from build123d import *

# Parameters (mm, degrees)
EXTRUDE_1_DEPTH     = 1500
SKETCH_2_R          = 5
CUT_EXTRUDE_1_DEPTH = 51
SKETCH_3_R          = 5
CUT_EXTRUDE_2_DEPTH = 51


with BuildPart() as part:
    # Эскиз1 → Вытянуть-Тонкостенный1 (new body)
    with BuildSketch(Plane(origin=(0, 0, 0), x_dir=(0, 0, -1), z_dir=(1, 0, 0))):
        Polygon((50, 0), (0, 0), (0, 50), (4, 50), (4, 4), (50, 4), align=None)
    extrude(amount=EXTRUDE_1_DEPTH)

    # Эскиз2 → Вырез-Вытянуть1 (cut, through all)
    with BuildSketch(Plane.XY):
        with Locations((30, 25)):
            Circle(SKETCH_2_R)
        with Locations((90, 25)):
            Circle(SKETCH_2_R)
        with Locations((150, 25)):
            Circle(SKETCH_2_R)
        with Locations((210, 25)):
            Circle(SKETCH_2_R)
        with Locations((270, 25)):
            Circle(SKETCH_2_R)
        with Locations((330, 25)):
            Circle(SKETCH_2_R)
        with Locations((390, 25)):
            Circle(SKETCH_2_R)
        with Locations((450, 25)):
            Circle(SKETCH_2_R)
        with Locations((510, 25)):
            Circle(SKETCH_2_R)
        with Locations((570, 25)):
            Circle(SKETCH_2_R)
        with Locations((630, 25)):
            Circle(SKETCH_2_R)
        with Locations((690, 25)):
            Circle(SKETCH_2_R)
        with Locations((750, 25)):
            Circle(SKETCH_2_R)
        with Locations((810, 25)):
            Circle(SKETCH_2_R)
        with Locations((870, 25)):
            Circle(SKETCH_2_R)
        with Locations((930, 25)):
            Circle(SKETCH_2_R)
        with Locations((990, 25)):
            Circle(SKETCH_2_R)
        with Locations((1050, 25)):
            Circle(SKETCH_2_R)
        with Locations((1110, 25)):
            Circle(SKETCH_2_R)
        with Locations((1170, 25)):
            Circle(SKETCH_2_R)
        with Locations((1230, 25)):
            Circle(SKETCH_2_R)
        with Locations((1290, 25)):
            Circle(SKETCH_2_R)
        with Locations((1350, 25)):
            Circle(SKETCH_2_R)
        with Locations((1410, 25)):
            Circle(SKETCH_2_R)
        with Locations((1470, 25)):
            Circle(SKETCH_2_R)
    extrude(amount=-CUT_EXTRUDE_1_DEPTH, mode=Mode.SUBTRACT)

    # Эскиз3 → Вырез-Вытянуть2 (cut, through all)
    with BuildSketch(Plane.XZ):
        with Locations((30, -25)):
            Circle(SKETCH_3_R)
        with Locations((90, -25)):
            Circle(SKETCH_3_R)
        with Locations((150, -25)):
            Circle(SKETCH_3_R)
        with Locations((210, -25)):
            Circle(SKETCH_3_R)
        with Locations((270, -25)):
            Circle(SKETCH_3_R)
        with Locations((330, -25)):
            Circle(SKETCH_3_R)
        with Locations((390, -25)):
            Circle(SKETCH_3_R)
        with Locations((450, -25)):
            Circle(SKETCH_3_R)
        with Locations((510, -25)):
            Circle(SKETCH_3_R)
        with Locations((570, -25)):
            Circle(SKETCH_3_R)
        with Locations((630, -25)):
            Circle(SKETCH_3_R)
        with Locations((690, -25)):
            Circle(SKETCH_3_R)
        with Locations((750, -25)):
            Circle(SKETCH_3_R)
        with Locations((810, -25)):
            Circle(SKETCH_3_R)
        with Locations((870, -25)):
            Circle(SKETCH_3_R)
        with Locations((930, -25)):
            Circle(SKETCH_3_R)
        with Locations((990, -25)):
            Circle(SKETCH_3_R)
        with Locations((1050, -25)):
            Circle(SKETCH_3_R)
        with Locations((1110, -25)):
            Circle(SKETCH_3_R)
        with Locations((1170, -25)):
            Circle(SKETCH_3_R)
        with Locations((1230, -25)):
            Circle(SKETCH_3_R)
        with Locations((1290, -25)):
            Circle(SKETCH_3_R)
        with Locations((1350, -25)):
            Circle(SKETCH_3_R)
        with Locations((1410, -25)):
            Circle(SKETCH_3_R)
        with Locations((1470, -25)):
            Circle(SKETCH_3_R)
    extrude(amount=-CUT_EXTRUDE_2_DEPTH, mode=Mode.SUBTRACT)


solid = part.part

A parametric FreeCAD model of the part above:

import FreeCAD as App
import Part
import Sketcher

V = App.Vector
Q = App.Units.Quantity

doc = App.newDocument("Part")
params = doc.addObject("Spreadsheet::Sheet", "Params")
for row, (alias, value) in enumerate([
    ("sketch1_width", "4 mm"),
    ("sketch1_width2", "46 mm"),
    ("pad1_length", "1500 mm"),
    ("sketch2_diameter", "10 mm"),
    ("sketch3_diameter", "10 mm"),
], start=1):
    params.set(f"A{row}", alias)
    params.set(f"B{row}", "=" + value)
    params.setAlias(f"B{row}", alias)

body = doc.addObject("PartDesign::Body", "Body")

# Sketch on YZ plane
sketch1 = body.newObject("Sketcher::SketchObject", "Sketch")
sketch1.AttachmentSupport = (doc.getObject("YZ_Plane"), [""])
sketch1.MapMode = "FlatFace"
sketch1.addGeometry([
    Part.LineSegment(V(0, 0, 0), V(0, -50, 0)),  # 0
    Part.LineSegment(V(0, -50, 0), V(4, -50, 0)),  # 1
    Part.LineSegment(V(4, -50, 0), V(4, -4, 0)),  # 2
    Part.LineSegment(V(4, -4, 0), V(50, -4, 0)),  # 3
    Part.LineSegment(V(50, -4, 0), V(50, 0, 0)),  # 4
    Part.LineSegment(V(50, 0, 0), V(0, 0, 0)),  # 5
], False)
sketch1.addConstraint([
    Sketcher.Constraint("Coincident", 0, 2, 1, 1),
    Sketcher.Constraint("Coincident", 1, 2, 2, 1),
    Sketcher.Constraint("Coincident", 2, 2, 3, 1),
    Sketcher.Constraint("Coincident", 3, 2, 4, 1),
    Sketcher.Constraint("Coincident", 4, 2, 5, 1),
    Sketcher.Constraint("Coincident", 5, 2, 0, 1),
    Sketcher.Constraint("Vertical", 0),
    Sketcher.Constraint("Horizontal", 1),
    Sketcher.Constraint("Vertical", 2),
    Sketcher.Constraint("Horizontal", 3),
    Sketcher.Constraint("Vertical", 4),
    Sketcher.Constraint("Horizontal", 5),
    Sketcher.Constraint("Coincident", 5, 2, -1, 1),
    Sketcher.Constraint("Equal", 5, 0),
    Sketcher.Constraint("Equal", 3, 2),
    Sketcher.Constraint("DistanceX", 1, 1, 1, 2, Q("4 mm")),
    Sketcher.Constraint("DistanceX", 3, 1, 3, 2, Q("46 mm")),
])
sketch1.setExpression("Constraints[15]", "Params.sketch1_width")
sketch1.setExpression("Constraints[16]", "Params.sketch1_width2")
pad1 = body.newObject("PartDesign::Pad", "Pad")
pad1.Profile = sketch1
pad1.setExpression("Length", "Params.pad1_length")

# Sketch on XY plane
sketch2 = body.newObject("Sketcher::SketchObject", "Sketch001")
sketch2.AttachmentSupport = (doc.getObject("XY_Plane"), [""])
sketch2.MapMode = "FlatFace"
sketch2.addGeometry([
    Part.Circle(V(30, 25, 0), V(0, 0, 1), 5),  # 0
    Part.Circle(V(90, 25, 0), V(0, 0, 1), 5),  # 1
    Part.Circle(V(150, 25, 0), V(0, 0, 1), 5),  # 2
    Part.Circle(V(210, 25, 0), V(0, 0, 1), 5),  # 3
    Part.Circle(V(270, 25, 0), V(0, 0, 1), 5),  # 4
    Part.Circle(V(330, 25, 0), V(0, 0, 1), 5),  # 5
    Part.Circle(V(390, 25, 0), V(0, 0, 1), 5),  # 6
    Part.Circle(V(450, 25, 0), V(0, 0, 1), 5),  # 7
    Part.Circle(V(510, 25, 0), V(0, 0, 1), 5),  # 8
    Part.Circle(V(570, 25, 0), V(0, 0, 1), 5),  # 9
    Part.Circle(V(630, 25, 0), V(0, 0, 1), 5),  # 10
    Part.Circle(V(690, 25, 0), V(0, 0, 1), 5),  # 11
    Part.Circle(V(750, 25, 0), V(0, 0, 1), 5),  # 12
    Part.Circle(V(810, 25, 0), V(0, 0, 1), 5),  # 13
    Part.Circle(V(870, 25, 0), V(0, 0, 1), 5),  # 14
    Part.Circle(V(930, 25, 0), V(0, 0, 1), 5),  # 15
    Part.Circle(V(990, 25, 0), V(0, 0, 1), 5),  # 16
    Part.Circle(V(1050, 25, 0), V(0, 0, 1), 5),  # 17
    Part.Circle(V(1110, 25, 0), V(0, 0, 1), 5),  # 18
    Part.Circle(V(1170, 25, 0), V(0, 0, 1), 5),  # 19
    Part.Circle(V(1230, 25, 0), V(0, 0, 1), 5),  # 20
    Part.Circle(V(1290, 25, 0), V(0, 0, 1), 5),  # 21
    Part.Circle(V(1350, 25, 0), V(0, 0, 1), 5),  # 22
    Part.Circle(V(1410, 25, 0), V(0, 0, 1), 5),  # 23
    Part.Circle(V(1470, 25, 0), V(0, 0, 1), 5),  # 24
], False)
sketch2.addConstraint([
    Sketcher.Constraint("Equal", 0, 1),
    Sketcher.Constraint("Equal", 1, 2),
    Sketcher.Constraint("Equal", 2, 3),
    Sketcher.Constraint("Equal", 3, 4),
    Sketcher.Constraint("Equal", 4, 5),
    Sketcher.Constraint("Equal", 5, 6),
    Sketcher.Constraint("Equal", 6, 7),
    Sketcher.Constraint("Equal", 7, 8),
    Sketcher.Constraint("Equal", 8, 9),
    Sketcher.Constraint("Equal", 9, 10),
    Sketcher.Constraint("Equal", 10, 11),
    Sketcher.Constraint("Equal", 11, 12),
    Sketcher.Constraint("Equal", 12, 13),
    Sketcher.Constraint("Equal", 13, 14),
    Sketcher.Constraint("Equal", 14, 15),
    Sketcher.Constraint("Equal", 15, 16),
    Sketcher.Constraint("Equal", 16, 17),
    Sketcher.Constraint("Equal", 17, 18),
    Sketcher.Constraint("Equal", 18, 19),
    Sketcher.Constraint("Equal", 19, 20),
    Sketcher.Constraint("Equal", 20, 21),
    Sketcher.Constraint("Equal", 21, 22),
    Sketcher.Constraint("Equal", 22, 23),
    Sketcher.Constraint("Equal", 23, 24),
    Sketcher.Constraint("Horizontal", 0, 3, 1, 3),
    Sketcher.Constraint("Horizontal", 1, 3, 2, 3),
    Sketcher.Constraint("Horizontal", 2, 3, 3, 3),
    Sketcher.Constraint("Horizontal", 3, 3, 4, 3),
    Sketcher.Constraint("Horizontal", 4, 3, 5, 3),
    Sketcher.Constraint("Horizontal", 5, 3, 6, 3),
    Sketcher.Constraint("Horizontal", 6, 3, 7, 3),
    Sketcher.Constraint("Horizontal", 7, 3, 8, 3),
    Sketcher.Constraint("Horizontal", 8, 3, 9, 3),
    Sketcher.Constraint("Horizontal", 9, 3, 10, 3),
    Sketcher.Constraint("Horizontal", 10, 3, 11, 3),
    Sketcher.Constraint("Horizontal", 11, 3, 12, 3),
    Sketcher.Constraint("Horizontal", 12, 3, 13, 3),
    Sketcher.Constraint("Horizontal", 13, 3, 14, 3),
    Sketcher.Constraint("Horizontal", 14, 3, 15, 3),
    Sketcher.Constraint("Horizontal", 15, 3, 16, 3),
    Sketcher.Constraint("Horizontal", 16, 3, 17, 3),
    Sketcher.Constraint("Horizontal", 17, 3, 18, 3),
    Sketcher.Constraint("Horizontal", 18, 3, 19, 3),
    Sketcher.Constraint("Horizontal", 19, 3, 20, 3),
    Sketcher.Constraint("Horizontal", 20, 3, 21, 3),
    Sketcher.Constraint("Horizontal", 21, 3, 22, 3),
    Sketcher.Constraint("Horizontal", 22, 3, 23, 3),
    Sketcher.Constraint("Horizontal", 23, 3, 24, 3),
    Sketcher.Constraint("Diameter", 0, Q("10 mm")),
    Sketcher.Constraint("DistanceX", -1, 1, 0, 3, Q("30 mm")),
    Sketcher.Constraint("DistanceY", -1, 1, 0, 3, Q("25 mm")),
    Sketcher.Constraint("DistanceX", -1, 1, 1, 3, Q("90 mm")),
    Sketcher.Constraint("DistanceX", -1, 1, 2, 3, Q("150 mm")),
    Sketcher.Constraint("DistanceX", -1, 1, 3, 3, Q("210 mm")),
    Sketcher.Constraint("DistanceX", -1, 1, 4, 3, Q("270 mm")),
    Sketcher.Constraint("DistanceX", -1, 1, 5, 3, Q("330 mm")),
    Sketcher.Constraint("DistanceX", -1, 1, 6, 3, Q("390 mm")),
    Sketcher.Constraint("DistanceX", -1, 1, 7, 3, Q("450 mm")),
    Sketcher.Constraint("DistanceX", -1, 1, 8, 3, Q("510 mm")),
    Sketcher.Constraint("DistanceX", -1, 1, 9, 3, Q("570 mm")),
    Sketcher.Constraint("DistanceX", -1, 1, 10, 3, Q("630 mm")),
    Sketcher.Constraint("DistanceX", -1, 1, 11, 3, Q("690 mm")),
    Sketcher.Constraint("DistanceX", -1, 1, 12, 3, Q("750 mm")),
    Sketcher.Constraint("DistanceX", -1, 1, 13, 3, Q("810 mm")),
    Sketcher.Constraint("DistanceX", -1, 1, 14, 3, Q("870 mm")),
    Sketcher.Constraint("DistanceX", -1, 1, 15, 3, Q("930 mm")),
    Sketcher.Constraint("DistanceX", -1, 1, 16, 3, Q("990 mm")),
    Sketcher.Constraint("DistanceX", -1, 1, 17, 3, Q("1050 mm")),
    Sketcher.Constraint("DistanceX", -1, 1, 18, 3, Q("1110 mm")),
    Sketcher.Constraint("DistanceX", -1, 1, 19, 3, Q("1170 mm")),
    Sketcher.Constraint("DistanceX", -1, 1, 20, 3, Q("1230 mm")),
    Sketcher.Constraint("DistanceX", -1, 1, 21, 3, Q("1290 mm")),
    Sketcher.Constraint("DistanceX", -1, 1, 22, 3, Q("1350 mm")),
    Sketcher.Constraint("DistanceX", -1, 1, 23, 3, Q("1410 mm")),
    Sketcher.Constraint("DistanceX", -1, 1, 24, 3, Q("1470 mm")),
])
sketch2.setExpression("Constraints[48]", "Params.sketch2_diameter")
pocket1 = body.newObject("PartDesign::Pocket", "Pocket")
pocket1.Profile = sketch2
pocket1.Type = "ThroughAll"

# Sketch on XZ plane
sketch3 = body.newObject("Sketcher::SketchObject", "Sketch002")
sketch3.AttachmentSupport = (doc.getObject("XZ_Plane"), [""])
sketch3.MapMode = "FlatFace"
sketch3.addGeometry([
    Part.Circle(V(30, -25, 0), V(0, 0, 1), 5),  # 0
    Part.Circle(V(90, -25, 0), V(0, 0, 1), 5),  # 1
    Part.Circle(V(150, -25, 0), V(0, 0, 1), 5),  # 2
    Part.Circle(V(210, -25, 0), V(0, 0, 1), 5),  # 3
    Part.Circle(V(270, -25, 0), V(0, 0, 1), 5),  # 4
    Part.Circle(V(330, -25, 0), V(0, 0, 1), 5),  # 5
    Part.Circle(V(390, -25, 0), V(0, 0, 1), 5),  # 6
    Part.Circle(V(450, -25, 0), V(0, 0, 1), 5),  # 7
    Part.Circle(V(510, -25, 0), V(0, 0, 1), 5),  # 8
    Part.Circle(V(570, -25, 0), V(0, 0, 1), 5),  # 9
    Part.Circle(V(630, -25, 0), V(0, 0, 1), 5),  # 10
    Part.Circle(V(690, -25, 0), V(0, 0, 1), 5),  # 11
    Part.Circle(V(750, -25, 0), V(0, 0, 1), 5),  # 12
    Part.Circle(V(810, -25, 0), V(0, 0, 1), 5),  # 13
    Part.Circle(V(870, -25, 0), V(0, 0, 1), 5),  # 14
    Part.Circle(V(930, -25, 0), V(0, 0, 1), 5),  # 15
    Part.Circle(V(990, -25, 0), V(0, 0, 1), 5),  # 16
    Part.Circle(V(1050, -25, 0), V(0, 0, 1), 5),  # 17
    Part.Circle(V(1110, -25, 0), V(0, 0, 1), 5),  # 18
    Part.Circle(V(1170, -25, 0), V(0, 0, 1), 5),  # 19
    Part.Circle(V(1230, -25, 0), V(0, 0, 1), 5),  # 20
    Part.Circle(V(1290, -25, 0), V(0, 0, 1), 5),  # 21
    Part.Circle(V(1350, -25, 0), V(0, 0, 1), 5),  # 22
    Part.Circle(V(1410, -25, 0), V(0, 0, 1), 5),  # 23
    Part.Circle(V(1470, -25, 0), V(0, 0, 1), 5),  # 24
], False)
sketch3.addConstraint([
    Sketcher.Constraint("Equal", 0, 1),
    Sketcher.Constraint("Equal", 1, 2),
    Sketcher.Constraint("Equal", 2, 3),
    Sketcher.Constraint("Equal", 3, 4),
    Sketcher.Constraint("Equal", 4, 5),
    Sketcher.Constraint("Equal", 5, 6),
    Sketcher.Constraint("Equal", 6, 7),
    Sketcher.Constraint("Equal", 7, 8),
    Sketcher.Constraint("Equal", 8, 9),
    Sketcher.Constraint("Equal", 9, 10),
    Sketcher.Constraint("Equal", 10, 11),
    Sketcher.Constraint("Equal", 11, 12),
    Sketcher.Constraint("Equal", 12, 13),
    Sketcher.Constraint("Equal", 13, 14),
    Sketcher.Constraint("Equal", 14, 15),
    Sketcher.Constraint("Equal", 15, 16),
    Sketcher.Constraint("Equal", 16, 17),
    Sketcher.Constraint("Equal", 17, 18),
    Sketcher.Constraint("Equal", 18, 19),
    Sketcher.Constraint("Equal", 19, 20),
    Sketcher.Constraint("Equal", 20, 21),
    Sketcher.Constraint("Equal", 21, 22),
    Sketcher.Constraint("Equal", 22, 23),
    Sketcher.Constraint("Equal", 23, 24),
    Sketcher.Constraint("Horizontal", 0, 3, 1, 3),
    Sketcher.Constraint("Horizontal", 1, 3, 2, 3),
    Sketcher.Constraint("Horizontal", 2, 3, 3, 3),
    Sketcher.Constraint("Horizontal", 3, 3, 4, 3),
    Sketcher.Constraint("Horizontal", 4, 3, 5, 3),
    Sketcher.Constraint("Horizontal", 5, 3, 6, 3),
    Sketcher.Constraint("Horizontal", 6, 3, 7, 3),
    Sketcher.Constraint("Horizontal", 7, 3, 8, 3),
    Sketcher.Constraint("Horizontal", 8, 3, 9, 3),
    Sketcher.Constraint("Horizontal", 9, 3, 10, 3),
    Sketcher.Constraint("Horizontal", 10, 3, 11, 3),
    Sketcher.Constraint("Horizontal", 11, 3, 12, 3),
    Sketcher.Constraint("Horizontal", 12, 3, 13, 3),
    Sketcher.Constraint("Horizontal", 13, 3, 14, 3),
    Sketcher.Constraint("Horizontal", 14, 3, 15, 3),
    Sketcher.Constraint("Horizontal", 15, 3, 16, 3),
    Sketcher.Constraint("Horizontal", 16, 3, 17, 3),
    Sketcher.Constraint("Horizontal", 17, 3, 18, 3),
    Sketcher.Constraint("Horizontal", 18, 3, 19, 3),
    Sketcher.Constraint("Horizontal", 19, 3, 20, 3),
    Sketcher.Constraint("Horizontal", 20, 3, 21, 3),
    Sketcher.Constraint("Horizontal", 21, 3, 22, 3),
    Sketcher.Constraint("Horizontal", 22, 3, 23, 3),
    Sketcher.Constraint("Horizontal", 23, 3, 24, 3),
    Sketcher.Constraint("Diameter", 0, Q("10 mm")),
    Sketcher.Constraint("DistanceX", -1, 1, 0, 3, Q("30 mm")),
    Sketcher.Constraint("DistanceY", 0, 3, -1, 1, Q("25 mm")),
    Sketcher.Constraint("DistanceX", -1, 1, 1, 3, Q("90 mm")),
    Sketcher.Constraint("DistanceX", -1, 1, 2, 3, Q("150 mm")),
    Sketcher.Constraint("DistanceX", -1, 1, 3, 3, Q("210 mm")),
    Sketcher.Constraint("DistanceX", -1, 1, 4, 3, Q("270 mm")),
    Sketcher.Constraint("DistanceX", -1, 1, 5, 3, Q("330 mm")),
    Sketcher.Constraint("DistanceX", -1, 1, 6, 3, Q("390 mm")),
    Sketcher.Constraint("DistanceX", -1, 1, 7, 3, Q("450 mm")),
    Sketcher.Constraint("DistanceX", -1, 1, 8, 3, Q("510 mm")),
    Sketcher.Constraint("DistanceX", -1, 1, 9, 3, Q("570 mm")),
    Sketcher.Constraint("DistanceX", -1, 1, 10, 3, Q("630 mm")),
    Sketcher.Constraint("DistanceX", -1, 1, 11, 3, Q("690 mm")),
    Sketcher.Constraint("DistanceX", -1, 1, 12, 3, Q("750 mm")),
    Sketcher.Constraint("DistanceX", -1, 1, 13, 3, Q("810 mm")),
    Sketcher.Constraint("DistanceX", -1, 1, 14, 3, Q("870 mm")),
    Sketcher.Constraint("DistanceX", -1, 1, 15, 3, Q("930 mm")),
    Sketcher.Constraint("DistanceX", -1, 1, 16, 3, Q("990 mm")),
    Sketcher.Constraint("DistanceX", -1, 1, 17, 3, Q("1050 mm")),
    Sketcher.Constraint("DistanceX", -1, 1, 18, 3, Q("1110 mm")),
    Sketcher.Constraint("DistanceX", -1, 1, 19, 3, Q("1170 mm")),
    Sketcher.Constraint("DistanceX", -1, 1, 20, 3, Q("1230 mm")),
    Sketcher.Constraint("DistanceX", -1, 1, 21, 3, Q("1290 mm")),
    Sketcher.Constraint("DistanceX", -1, 1, 22, 3, Q("1350 mm")),
    Sketcher.Constraint("DistanceX", -1, 1, 23, 3, Q("1410 mm")),
    Sketcher.Constraint("DistanceX", -1, 1, 24, 3, Q("1470 mm")),
])
sketch3.setExpression("Constraints[48]", "Params.sketch3_diameter")
pocket2 = body.newObject("PartDesign::Pocket", "Pocket001")
pocket2.Profile = sketch3
pocket2.Type = "ThroughAll"

doc.recompute()
